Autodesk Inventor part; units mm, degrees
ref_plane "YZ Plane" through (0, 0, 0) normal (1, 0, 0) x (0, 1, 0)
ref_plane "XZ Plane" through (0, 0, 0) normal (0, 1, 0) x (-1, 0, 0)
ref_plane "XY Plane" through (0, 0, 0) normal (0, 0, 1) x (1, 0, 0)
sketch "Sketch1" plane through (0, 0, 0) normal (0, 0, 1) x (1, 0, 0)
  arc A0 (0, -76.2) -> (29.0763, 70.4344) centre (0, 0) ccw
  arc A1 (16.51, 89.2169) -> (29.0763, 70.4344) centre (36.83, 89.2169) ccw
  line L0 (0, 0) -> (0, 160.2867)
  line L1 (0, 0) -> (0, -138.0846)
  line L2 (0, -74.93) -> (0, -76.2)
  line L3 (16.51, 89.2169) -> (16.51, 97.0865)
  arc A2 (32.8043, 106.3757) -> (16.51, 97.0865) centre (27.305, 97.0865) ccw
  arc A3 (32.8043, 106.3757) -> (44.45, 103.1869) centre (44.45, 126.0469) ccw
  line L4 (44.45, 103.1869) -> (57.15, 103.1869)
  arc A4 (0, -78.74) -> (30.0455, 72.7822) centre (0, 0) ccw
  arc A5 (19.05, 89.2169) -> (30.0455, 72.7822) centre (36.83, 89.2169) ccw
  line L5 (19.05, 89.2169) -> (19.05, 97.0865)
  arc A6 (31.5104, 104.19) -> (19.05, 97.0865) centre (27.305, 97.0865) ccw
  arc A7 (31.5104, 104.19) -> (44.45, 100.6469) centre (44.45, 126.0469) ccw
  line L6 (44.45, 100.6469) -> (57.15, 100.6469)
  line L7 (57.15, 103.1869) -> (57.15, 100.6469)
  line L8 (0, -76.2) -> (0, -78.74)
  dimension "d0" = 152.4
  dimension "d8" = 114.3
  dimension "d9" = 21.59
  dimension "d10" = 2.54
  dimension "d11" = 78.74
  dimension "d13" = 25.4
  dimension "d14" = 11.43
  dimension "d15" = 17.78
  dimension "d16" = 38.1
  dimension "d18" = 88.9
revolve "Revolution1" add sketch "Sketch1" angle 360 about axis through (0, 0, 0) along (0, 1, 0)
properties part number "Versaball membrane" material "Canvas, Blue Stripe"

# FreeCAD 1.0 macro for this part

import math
import FreeCAD as App
import Part
import Sketcher
Q = App.Units.Quantity

doc = App.newDocument("Part")
body = doc.addObject("PartDesign::Body", "Body")

# Sketch on XY plane
sketch1 = doc.addObject("Sketcher::SketchObject", "Sketch")
body.addObject(sketch1)
sketch1.AttachmentSupport = (doc.XY_Plane, [""])
sketch1.MapMode = "FlatFace"
sketch1.addGeometry(Part.ArcOfCircle(Part.Circle(App.Vector(0, 0, 0), App.Vector(0, 0, 1), 76.2), math.radians(-90), math.radians(68)), False)
sketch1.addGeometry(Part.LineSegment(App.Vector(0, -76.2, 0), App.Vector(0, -78.7, 0)), False)
sketch1.addGeometry(Part.ArcOfCircle(Part.Circle(App.Vector(0, 0, 0), App.Vector(0, 0, 1), 78.7), math.radians(-90), math.radians(68)), False)
sketch1.addGeometry(Part.ArcOfCircle(Part.Circle(App.Vector(36.8, 89.2, 0), App.Vector(0, 0, 1), 17.8), math.radians(180), math.radians(248)), False)
sketch1.addGeometry(Part.LineSegment(App.Vector(19.1, 89.2, 0), App.Vector(19.1, 97.1, 0)), False)
sketch1.addGeometry(Part.ArcOfCircle(Part.Circle(App.Vector(27.3, 97.1, 0), App.Vector(0, 0, 1), 8.3), math.radians(59), math.radians(180)), False)
sketch1.addGeometry(Part.ArcOfCircle(Part.Circle(App.Vector(44.5, 126, 0), App.Vector(0, 0, 1), 25.4), math.radians(-121), math.radians(-90)), False)
sketch1.addGeometry(Part.LineSegment(App.Vector(44.5, 100.6, 0), App.Vector(57.1, 100.6, 0)), False)
sketch1.addGeometry(Part.LineSegment(App.Vector(57.1, 100.6, 0), App.Vector(57.1, 103.2, 0)), False)
sketch1.addGeometry(Part.LineSegment(App.Vector(57.1, 103.2, 0), App.Vector(44.5, 103.2, 0)), False)
sketch1.addGeometry(Part.ArcOfCircle(Part.Circle(App.Vector(44.5, 126, 0), App.Vector(0, 0, 1), 22.9), math.radians(-121), math.radians(-90)), False)
sketch1.addGeometry(Part.ArcOfCircle(Part.Circle(App.Vector(27.3, 97.1, 0), App.Vector(0, 0, 1), 10.8), math.radians(59), math.radians(180)), False)
sketch1.addGeometry(Part.LineSegment(App.Vector(16.5, 97.1, 0), App.Vector(16.5, 89.2, 0)), False)
sketch1.addGeometry(Part.ArcOfCircle(Part.Circle(App.Vector(36.8, 89.2, 0), App.Vector(0, 0, 1), 20.3), math.radians(180), math.radians(248)), False)
sketch1.addConstraint(Sketcher.Constraint("Coincident", 0, 1, 1, 1))
sketch1.addConstraint(Sketcher.Constraint("Coincident", 1, 2, 2, 1))
sketch1.addConstraint(Sketcher.Constraint("Tangent", 2, 2, 3, 2))
sketch1.addConstraint(Sketcher.Constraint("Tangent", 3, 1, 4, 1))
sketch1.addConstraint(Sketcher.Constraint("Tangent", 4, 2, 5, 2))
sketch1.addConstraint(Sketcher.Constraint("Tangent", 5, 1, 6, 1))
sketch1.addConstraint(Sketcher.Constraint("Tangent", 6, 2, 7, 1))
sketch1.addConstraint(Sketcher.Constraint("Coincident", 7, 2, 8, 1))
sketch1.addConstraint(Sketcher.Constraint("Coincident", 8, 2, 9, 1))
sketch1.addConstraint(Sketcher.Constraint("Tangent", 9, 2, 10, 2))
sketch1.addConstraint(Sketcher.Constraint("Tangent", 10, 1, 11, 1))
sketch1.addConstraint(Sketcher.Constraint("Tangent", 11, 2, 12, 1))
sketch1.addConstraint(Sketcher.Constraint("Tangent", 12, 2, 13, 1))
sketch1.addConstraint(Sketcher.Constraint("Tangent", 13, 2, 0, 2))
sketch1.addConstraint(Sketcher.Constraint("Vertical", 1))
sketch1.addConstraint(Sketcher.Constraint("Vertical", 4))
sketch1.addConstraint(Sketcher.Constraint("Horizontal", 7))
sketch1.addConstraint(Sketcher.Constraint("Vertical", 8))
sketch1.addConstraint(Sketcher.Constraint("Horizontal", 9))
sketch1.addConstraint(Sketcher.Constraint("Vertical", 12))
sketch1.addConstraint(Sketcher.Constraint("Coincident", 0, 3, -1, 1))
sketch1.addConstraint(Sketcher.Constraint("Coincident", 2, 3, -1, 1))
sketch1.addConstraint(Sketcher.Constraint("Coincident", 10, 3, 6, 3))
sketch1.addConstraint(Sketcher.Constraint("Coincident", 11, 3, 5, 3))
sketch1.addConstraint(Sketcher.Constraint("Coincident", 13, 3, 3, 3))
sketch1.addConstraint(Sketcher.Constraint("PointOnObject", 0, 1, -2))
sketch1.addConstraint(Sketcher.Constraint("Radius", 0, Q("3 in")))
sketch1.addConstraint(Sketcher.Constraint("Radius", 6, Q("1 in")))
sketch1.addConstraint(Sketcher.Constraint("Radius", 2, Q("3.1 in")))
sketch1.addConstraint(Sketcher.Constraint("Radius", 3, Q("0.7 in")))
sketch1.addConstraint(Sketcher.Constraint("Radius", 11, Q("0.425 in")))
sketch1.addConstraint(Sketcher.Constraint("DistanceY", 3, 3, 6, 2, Q("0.45 in")))
sketch1.addConstraint(Sketcher.Constraint("DistanceX", 7, 1, 7, 2, Q("0.5 in")))
sketch1.addConstraint(Sketcher.Constraint("DistanceX", 3, 3, 6, 3, Q("0.3 in")))
sketch1.addConstraint(Sketcher.Constraint("DistanceX", -1, 1, 3, 3, Q("1.45 in")))
revolution = doc.addObject("PartDesign::Revolution", "Revolution")
body.addObject(revolution)
revolution.Profile = sketch1
revolution.ReferenceAxis = (sketch1, ["V_Axis"])
revolution.Angle = 360

doc.recompute()
